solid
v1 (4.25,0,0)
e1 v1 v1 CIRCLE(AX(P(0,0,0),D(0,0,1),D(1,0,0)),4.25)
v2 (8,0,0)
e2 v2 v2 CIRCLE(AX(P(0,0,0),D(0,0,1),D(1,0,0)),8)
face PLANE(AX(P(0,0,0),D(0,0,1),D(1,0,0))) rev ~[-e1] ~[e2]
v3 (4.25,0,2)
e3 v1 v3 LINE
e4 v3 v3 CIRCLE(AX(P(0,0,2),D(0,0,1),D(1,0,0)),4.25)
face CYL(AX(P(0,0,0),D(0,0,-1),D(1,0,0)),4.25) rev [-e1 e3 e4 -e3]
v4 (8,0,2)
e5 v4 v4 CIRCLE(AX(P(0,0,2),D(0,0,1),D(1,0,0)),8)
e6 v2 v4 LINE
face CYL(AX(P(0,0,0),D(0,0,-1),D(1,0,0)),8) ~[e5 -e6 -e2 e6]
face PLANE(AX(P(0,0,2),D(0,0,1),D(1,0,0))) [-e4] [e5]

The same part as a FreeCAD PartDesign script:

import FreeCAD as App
import Part
import Sketcher
Q = App.Units.Quantity

doc = App.newDocument("Part")
body = doc.addObject("PartDesign::Body", "Body")

sketch1 = body.newObject("Sketcher::SketchObject", "Sketch")
sketch1.AttachmentSupport = (doc.getObject("XY_Plane"), [""])
sketch1.MapMode = "FlatFace"
sketch1.addGeometry(Part.Circle(App.Vector(0, 0, 0), App.Vector(0, 0, 1), 8), False)
sketch1.addGeometry(Part.Circle(App.Vector(0, 0, 0), App.Vector(0, 0, 1), 4.25), False)
sketch1.addConstraint(Sketcher.Constraint("Coincident", 0, 3, -1, 1))
sketch1.addConstraint(Sketcher.Constraint("Coincident", 1, 3, -1, 1))
sketch1.addConstraint(Sketcher.Constraint("Diameter", 0, Q("16 mm")))
sketch1.addConstraint(Sketcher.Constraint("Diameter", 1, Q("8.5 mm")))
pad1 = body.newObject("PartDesign::Pad", "Pad")
pad1.Profile = sketch1
pad1.Length = 2

doc.recompute()
